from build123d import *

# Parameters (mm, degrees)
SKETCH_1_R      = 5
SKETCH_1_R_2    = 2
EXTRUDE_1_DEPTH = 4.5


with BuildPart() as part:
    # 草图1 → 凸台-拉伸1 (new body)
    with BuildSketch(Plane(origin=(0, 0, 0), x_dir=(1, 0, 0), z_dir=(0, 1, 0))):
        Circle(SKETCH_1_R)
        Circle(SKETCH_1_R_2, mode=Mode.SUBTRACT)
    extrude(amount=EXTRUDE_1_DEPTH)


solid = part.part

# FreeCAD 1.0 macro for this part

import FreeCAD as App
import Part
import Sketcher
from FreeCAD import Vector
Q = App.Units.Quantity

doc = App.newDocument("Part")
body = doc.addObject("PartDesign::Body", "Body")

# Sketch on XZ plane
sketch1 = body.newObject("Sketcher::SketchObject", "Sketch")
sketch1.AttachmentSupport = (doc.getObject("XZ_Plane"), [""])
sketch1.MapMode = "FlatFace"
sketch1.addGeometry([
    Part.Circle(Vector(0, 0, 0), Vector(0, 0, 1), 5),
    Part.Circle(Vector(0, 0, 0), Vector(0, 0, 1), 2),
], False)
sketch1.addConstraint([
    Sketcher.Constraint("Coincident", 0, 3, -1, 1),
    Sketcher.Constraint("Coincident", 1, 3, -1, 1),
    Sketcher.Constraint("Diameter", 0, Q("10 mm")),
    Sketcher.Constraint("Diameter", 1, Q("4 mm")),
])
pad1 = body.newObject("PartDesign::Pad", "Pad")
pad1.Profile = sketch1
pad1.Length = 4.5
pad1.Reversed = True

doc.recompute()
